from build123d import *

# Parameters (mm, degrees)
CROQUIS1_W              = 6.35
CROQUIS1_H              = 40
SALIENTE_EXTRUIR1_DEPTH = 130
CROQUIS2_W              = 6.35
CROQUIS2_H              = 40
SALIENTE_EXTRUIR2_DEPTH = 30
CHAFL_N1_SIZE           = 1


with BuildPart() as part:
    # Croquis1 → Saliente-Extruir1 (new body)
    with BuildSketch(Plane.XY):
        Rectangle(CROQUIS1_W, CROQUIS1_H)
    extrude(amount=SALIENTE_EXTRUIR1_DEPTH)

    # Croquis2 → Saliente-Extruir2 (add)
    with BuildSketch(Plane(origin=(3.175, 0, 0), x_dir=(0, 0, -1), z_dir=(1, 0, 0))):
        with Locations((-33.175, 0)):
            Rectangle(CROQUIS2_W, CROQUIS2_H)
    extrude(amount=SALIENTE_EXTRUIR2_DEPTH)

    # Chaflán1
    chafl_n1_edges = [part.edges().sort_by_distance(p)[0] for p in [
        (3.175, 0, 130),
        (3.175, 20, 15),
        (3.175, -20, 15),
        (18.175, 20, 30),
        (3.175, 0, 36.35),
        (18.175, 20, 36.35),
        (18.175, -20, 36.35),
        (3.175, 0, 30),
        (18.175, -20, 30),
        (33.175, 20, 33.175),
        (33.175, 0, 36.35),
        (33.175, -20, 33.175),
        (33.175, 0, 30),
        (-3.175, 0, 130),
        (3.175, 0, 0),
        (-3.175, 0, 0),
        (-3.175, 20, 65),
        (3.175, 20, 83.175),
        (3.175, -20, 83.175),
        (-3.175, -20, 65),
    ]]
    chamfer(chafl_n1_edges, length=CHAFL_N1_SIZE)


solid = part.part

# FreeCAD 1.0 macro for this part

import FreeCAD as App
import Part
import Sketcher
from FreeCAD import Vector
Q = App.Units.Quantity


def edges_at(feature, points):
    """Names of the edges that pass closest to the given points."""
    edges = feature.Shape.Edges
    near = lambda p: min(range(len(edges)), key=lambda i: edges[i].distToShape(Part.Vertex(*p))[0])
    return sorted({f"Edge{near(p) + 1}" for p in points})


def add_polygon(sketch, points):
    """Adds a closed chain of lines whose ends are joined by coincident constraints."""
    first, n = sketch.GeometryCount, len(points)
    for a, b in zip(points, points[1:] + points[:1]):
        sketch.addGeometry(Part.LineSegment(App.Vector(*a, 0), App.Vector(*b, 0)), False)
    for i in range(n):
        sketch.addConstraint(Sketcher.Constraint("Coincident", first + i, 2, first + (i + 1) % n, 1))

doc = App.newDocument("Part")
body = doc.addObject("PartDesign::Body", "Body")

sketch1 = doc.addObject("Sketcher::SketchObject", "Sketch")
body.addObject(sketch1)
sketch1.AttachmentSupport = (doc.XY_Plane, [""])
sketch1.MapMode = "FlatFace"
add_polygon(sketch1, [(-3.175, 20), (-3.175, -20), (3.175, -20), (3.175, 20)])
sketch1.addConstraint([
    Sketcher.Constraint("Vertical", 0),
    Sketcher.Constraint("Horizontal", 1),
    Sketcher.Constraint("Vertical", 2),
    Sketcher.Constraint("Horizontal", 3),
    Sketcher.Constraint("Symmetric", 0, 2, 2, 2, -1, 1),
    Sketcher.Constraint("DistanceY", 0, 2, 0, 1, Q("40 mm")),
    Sketcher.Constraint("DistanceX", 1, 1, 1, 2, Q("6.35 mm")),
])
pad1 = doc.addObject("PartDesign::Pad", "Pad")
body.addObject(pad1)
pad1.Profile = sketch1
pad1.Length = 130

sketch2 = doc.addObject("Sketcher::SketchObject", "Sketch001")
body.addObject(sketch2)
sketch2.AttachmentSupport = (doc.YZ_Plane, [""])
sketch2.MapMode = "FlatFace"
sketch2.AttachmentOffset = App.Placement(Vector(0, 0, 3.175), App.Rotation())
add_polygon(sketch2, [(20, 36.35), (-20, 36.35), (-20, 30), (20, 30)])
sketch2.addConstraint([
    Sketcher.Constraint("Horizontal", 0),
    Sketcher.Constraint("Vertical", 1),
    Sketcher.Constraint("Horizontal", 2),
    Sketcher.Constraint("Vertical", 3),
    Sketcher.Constraint("DistanceX", 0, 2, 0, 1, Q("40 mm")),
    Sketcher.Constraint("DistanceX", 0, 2, -1, 1, Q("20 mm")),
    Sketcher.Constraint("DistanceY", -1, 1, 1, 2, Q("30 mm")),
    Sketcher.Constraint("DistanceY", 1, 2, 1, 1, Q("6.35 mm")),
])
pad2 = doc.addObject("PartDesign::Pad", "Pad001")
body.addObject(pad2)
pad2.Profile = sketch2
pad2.Length = 30
doc.recompute()

chamfer = doc.addObject("PartDesign::Chamfer", "Chamfer")
body.addObject(chamfer)
chamfer.Base = (pad2, edges_at(pad2, [
    (3.175, 0, 130),
    (3.175, 20, 15),
    (3.175, -20, 15),
    (18.175, 20, 30),
    (3.175, 0, 36.35),
    (18.175, 20, 36.35),
    (18.175, -20, 36.35),
    (3.175, 0, 30),
    (18.175, -20, 30),
    (33.175, 20, 33.175),
    (33.175, 0, 36.35),
    (33.175, -20, 33.175),
    (33.175, 0, 30),
    (-3.175, 0, 130),
    (3.175, 0, 0),
    (-3.175, 0, 0),
    (-3.175, 20, 65),
    (3.175, 20, 83.175),
    (3.175, -20, 83.175),
    (-3.175, -20, 65),
]))
chamfer.Size = 1

doc.recompute()
